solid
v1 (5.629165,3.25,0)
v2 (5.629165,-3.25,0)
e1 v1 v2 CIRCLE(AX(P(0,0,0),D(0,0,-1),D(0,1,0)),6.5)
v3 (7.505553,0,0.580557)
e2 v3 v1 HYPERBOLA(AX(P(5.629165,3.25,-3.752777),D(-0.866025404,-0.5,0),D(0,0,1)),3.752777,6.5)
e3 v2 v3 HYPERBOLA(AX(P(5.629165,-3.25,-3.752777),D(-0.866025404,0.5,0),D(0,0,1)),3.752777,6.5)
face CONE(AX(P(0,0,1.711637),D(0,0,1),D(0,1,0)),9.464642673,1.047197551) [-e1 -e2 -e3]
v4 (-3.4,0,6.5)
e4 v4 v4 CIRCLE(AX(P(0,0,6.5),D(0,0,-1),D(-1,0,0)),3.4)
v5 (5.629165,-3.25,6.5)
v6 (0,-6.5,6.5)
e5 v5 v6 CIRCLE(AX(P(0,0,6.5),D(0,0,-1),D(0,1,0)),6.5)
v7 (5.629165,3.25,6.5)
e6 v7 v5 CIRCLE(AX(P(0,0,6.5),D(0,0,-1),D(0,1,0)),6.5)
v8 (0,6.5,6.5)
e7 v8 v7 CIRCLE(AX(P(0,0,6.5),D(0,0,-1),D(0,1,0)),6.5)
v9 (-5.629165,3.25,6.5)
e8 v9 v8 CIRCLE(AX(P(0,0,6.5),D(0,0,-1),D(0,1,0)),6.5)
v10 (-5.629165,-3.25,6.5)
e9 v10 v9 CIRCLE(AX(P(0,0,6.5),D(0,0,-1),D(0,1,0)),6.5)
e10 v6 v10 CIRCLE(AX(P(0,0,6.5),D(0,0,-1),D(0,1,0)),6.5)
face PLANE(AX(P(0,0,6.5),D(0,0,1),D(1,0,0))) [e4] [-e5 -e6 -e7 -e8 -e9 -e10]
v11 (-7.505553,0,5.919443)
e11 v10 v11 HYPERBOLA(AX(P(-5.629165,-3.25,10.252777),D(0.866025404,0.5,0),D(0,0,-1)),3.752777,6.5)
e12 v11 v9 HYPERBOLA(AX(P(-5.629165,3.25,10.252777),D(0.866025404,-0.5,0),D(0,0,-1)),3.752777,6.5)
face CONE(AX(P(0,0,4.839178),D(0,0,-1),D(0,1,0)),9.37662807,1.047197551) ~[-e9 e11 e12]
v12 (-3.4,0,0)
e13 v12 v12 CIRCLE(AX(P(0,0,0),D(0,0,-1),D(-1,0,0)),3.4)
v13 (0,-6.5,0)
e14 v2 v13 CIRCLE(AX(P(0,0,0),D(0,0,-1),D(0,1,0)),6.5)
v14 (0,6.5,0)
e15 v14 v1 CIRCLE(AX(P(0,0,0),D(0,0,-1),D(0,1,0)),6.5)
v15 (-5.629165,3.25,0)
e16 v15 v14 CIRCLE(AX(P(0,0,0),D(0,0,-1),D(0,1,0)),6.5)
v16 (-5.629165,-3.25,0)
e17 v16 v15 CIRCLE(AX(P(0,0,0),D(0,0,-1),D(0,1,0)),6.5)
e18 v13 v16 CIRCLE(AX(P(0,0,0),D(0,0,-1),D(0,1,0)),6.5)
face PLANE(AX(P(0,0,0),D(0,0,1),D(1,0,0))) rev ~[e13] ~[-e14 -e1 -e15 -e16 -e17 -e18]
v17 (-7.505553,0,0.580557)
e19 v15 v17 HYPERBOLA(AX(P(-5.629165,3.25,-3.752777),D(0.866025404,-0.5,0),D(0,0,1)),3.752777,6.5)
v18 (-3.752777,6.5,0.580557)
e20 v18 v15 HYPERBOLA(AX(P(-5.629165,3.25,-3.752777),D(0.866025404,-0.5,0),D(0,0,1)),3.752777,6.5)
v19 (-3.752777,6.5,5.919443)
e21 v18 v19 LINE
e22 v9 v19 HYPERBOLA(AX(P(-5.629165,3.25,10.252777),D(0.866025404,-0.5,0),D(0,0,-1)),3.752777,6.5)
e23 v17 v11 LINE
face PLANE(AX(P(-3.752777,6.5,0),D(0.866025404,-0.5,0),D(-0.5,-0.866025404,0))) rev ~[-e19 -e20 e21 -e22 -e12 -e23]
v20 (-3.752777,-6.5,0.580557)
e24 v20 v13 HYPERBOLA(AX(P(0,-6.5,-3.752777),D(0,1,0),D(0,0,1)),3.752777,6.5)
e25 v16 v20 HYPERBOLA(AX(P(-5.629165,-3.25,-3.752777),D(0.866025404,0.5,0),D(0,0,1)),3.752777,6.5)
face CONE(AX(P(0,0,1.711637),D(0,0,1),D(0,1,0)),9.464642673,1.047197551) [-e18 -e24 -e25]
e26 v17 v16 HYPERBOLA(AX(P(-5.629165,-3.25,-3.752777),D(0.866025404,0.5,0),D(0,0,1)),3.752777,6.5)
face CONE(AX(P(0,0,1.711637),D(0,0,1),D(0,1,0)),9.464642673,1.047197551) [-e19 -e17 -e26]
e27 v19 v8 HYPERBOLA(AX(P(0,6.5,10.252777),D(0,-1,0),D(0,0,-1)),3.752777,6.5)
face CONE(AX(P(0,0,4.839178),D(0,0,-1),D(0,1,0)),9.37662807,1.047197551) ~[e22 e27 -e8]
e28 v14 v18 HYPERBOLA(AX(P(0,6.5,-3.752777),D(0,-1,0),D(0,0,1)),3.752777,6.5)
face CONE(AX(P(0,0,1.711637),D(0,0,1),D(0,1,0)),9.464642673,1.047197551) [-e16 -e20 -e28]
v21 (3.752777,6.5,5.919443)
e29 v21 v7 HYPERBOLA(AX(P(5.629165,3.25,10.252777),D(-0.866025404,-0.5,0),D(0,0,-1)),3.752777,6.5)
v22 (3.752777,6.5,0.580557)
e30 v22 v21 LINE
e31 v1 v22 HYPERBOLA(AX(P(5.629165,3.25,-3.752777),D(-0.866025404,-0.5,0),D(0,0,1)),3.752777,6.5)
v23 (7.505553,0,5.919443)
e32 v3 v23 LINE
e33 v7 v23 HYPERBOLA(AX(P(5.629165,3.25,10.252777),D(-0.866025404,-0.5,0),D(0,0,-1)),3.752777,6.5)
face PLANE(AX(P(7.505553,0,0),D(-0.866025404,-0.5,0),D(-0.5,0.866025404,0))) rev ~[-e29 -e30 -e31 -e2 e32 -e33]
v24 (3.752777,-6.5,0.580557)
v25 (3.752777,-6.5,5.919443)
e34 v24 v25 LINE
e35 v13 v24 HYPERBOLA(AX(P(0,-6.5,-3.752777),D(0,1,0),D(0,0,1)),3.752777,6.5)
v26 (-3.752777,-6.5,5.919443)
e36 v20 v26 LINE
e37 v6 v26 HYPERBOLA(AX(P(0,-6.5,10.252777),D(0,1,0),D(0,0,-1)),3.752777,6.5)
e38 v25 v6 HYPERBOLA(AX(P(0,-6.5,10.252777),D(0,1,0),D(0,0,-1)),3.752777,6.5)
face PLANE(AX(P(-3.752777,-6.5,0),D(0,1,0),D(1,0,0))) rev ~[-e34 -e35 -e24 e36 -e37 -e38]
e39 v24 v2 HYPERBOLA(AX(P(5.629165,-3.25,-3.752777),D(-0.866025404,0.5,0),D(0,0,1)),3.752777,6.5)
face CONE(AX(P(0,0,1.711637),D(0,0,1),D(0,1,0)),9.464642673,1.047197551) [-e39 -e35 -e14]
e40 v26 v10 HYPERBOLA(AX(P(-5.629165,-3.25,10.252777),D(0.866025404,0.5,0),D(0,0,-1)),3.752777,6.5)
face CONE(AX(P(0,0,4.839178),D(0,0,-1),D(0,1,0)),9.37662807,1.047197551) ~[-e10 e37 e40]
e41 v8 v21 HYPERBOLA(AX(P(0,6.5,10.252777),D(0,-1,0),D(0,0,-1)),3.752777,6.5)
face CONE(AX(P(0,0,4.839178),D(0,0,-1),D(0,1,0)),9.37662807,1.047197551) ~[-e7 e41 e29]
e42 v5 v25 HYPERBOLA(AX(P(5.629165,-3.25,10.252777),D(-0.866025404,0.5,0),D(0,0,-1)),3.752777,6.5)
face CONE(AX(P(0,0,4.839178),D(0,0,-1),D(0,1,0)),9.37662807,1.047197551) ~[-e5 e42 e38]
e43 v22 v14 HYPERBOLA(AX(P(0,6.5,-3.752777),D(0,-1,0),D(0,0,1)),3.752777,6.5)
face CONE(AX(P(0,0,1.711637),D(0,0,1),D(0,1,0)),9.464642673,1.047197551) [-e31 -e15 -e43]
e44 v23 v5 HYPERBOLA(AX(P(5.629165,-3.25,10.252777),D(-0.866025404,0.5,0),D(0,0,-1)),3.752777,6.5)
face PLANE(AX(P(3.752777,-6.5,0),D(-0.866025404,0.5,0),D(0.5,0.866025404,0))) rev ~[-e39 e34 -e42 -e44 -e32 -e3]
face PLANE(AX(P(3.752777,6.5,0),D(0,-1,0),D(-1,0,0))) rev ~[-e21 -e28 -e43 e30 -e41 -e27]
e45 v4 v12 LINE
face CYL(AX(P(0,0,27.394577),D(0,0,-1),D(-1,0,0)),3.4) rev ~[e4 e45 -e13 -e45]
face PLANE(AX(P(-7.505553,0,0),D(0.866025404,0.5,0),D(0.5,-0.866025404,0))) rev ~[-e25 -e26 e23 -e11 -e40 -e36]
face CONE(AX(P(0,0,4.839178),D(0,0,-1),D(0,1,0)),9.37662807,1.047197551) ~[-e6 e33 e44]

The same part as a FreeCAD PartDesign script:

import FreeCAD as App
import Part
import Sketcher
from FreeCAD import Vector
Q = App.Units.Quantity

doc = App.newDocument("Part")
body = doc.addObject("PartDesign::Body", "Body")

sketch1 = doc.addObject("Sketcher::SketchObject", "Sketch")
body.addObject(sketch1)
sketch1.AttachmentSupport = (doc.XY_Plane, [""])
sketch1.MapMode = "FlatFace"
sketch1.addGeometry([
    Part.LineSegment(Vector(3.752777, -6.5, 0), Vector(7.505553, 0, 0)),
    Part.LineSegment(Vector(7.505553, 0, 0), Vector(3.752777, 6.5, 0)),
    Part.LineSegment(Vector(3.752777, 6.5, 0), Vector(-3.752777, 6.5, 0)),
    Part.LineSegment(Vector(-3.752777, 6.5, 0), Vector(-7.505553, 0, 0)),
    Part.LineSegment(Vector(-7.505553, 0, 0), Vector(-3.752777, -6.5, 0)),
    Part.LineSegment(Vector(-3.752777, -6.5, 0), Vector(3.752777, -6.5, 0)),
], False)
sketch1.addConstraint([
    Sketcher.Constraint("Coincident", 0, 2, 1, 1),
    Sketcher.Constraint("Coincident", 1, 2, 2, 1),
    Sketcher.Constraint("Coincident", 2, 2, 3, 1),
    Sketcher.Constraint("Coincident", 3, 2, 4, 1),
    Sketcher.Constraint("Coincident", 4, 2, 5, 1),
    Sketcher.Constraint("Coincident", 5, 2, 0, 1),
    Sketcher.Constraint("Horizontal", 2),
    Sketcher.Constraint("Horizontal", 5),
    Sketcher.Constraint("Symmetric", 0, 2, 3, 2, -1, 1),
    Sketcher.Constraint("Symmetric", 1, 2, 4, 2, -1, 1),
    Sketcher.Constraint("PointOnObject", 0, 2, -1),
    Sketcher.Constraint("Parallel", 0, 3),
    Sketcher.Constraint("Vertical", 2, 2, 4, 2),
    Sketcher.Constraint("Angle", 0, Q("60 deg")),
    Sketcher.Constraint("DistanceY", 4, 2, 2, 2, 13.0),
    Sketcher.Constraint("DistanceX", 2, 2, 2, 1, 7.505554),
])
pad1 = doc.addObject("PartDesign::Pad", "Pad")
body.addObject(pad1)
pad1.Profile = sketch1
pad1.Length = 6.5

sketch2 = doc.addObject("Sketcher::SketchObject", "Sketch001")
body.addObject(sketch2)
sketch2.AttachmentSupport = (doc.YZ_Plane, [""])
sketch2.MapMode = "FlatFace"
sketch2.addGeometry([
    Part.LineSegment(Vector(9.464643, 1.711637, 0), Vector(6.5, 0, 0)),
    Part.LineSegment(Vector(6.5, 0, 0), Vector(9.464643, 0, 0)),
    Part.LineSegment(Vector(9.464643, 0, 0), Vector(9.464643, 1.711637, 0)),
    Part.LineSegment(Vector(9.376628, 6.5, 0), Vector(6.5, 6.5, 0)),
    Part.LineSegment(Vector(6.5, 6.5, 0), Vector(9.376628, 4.839178, 0)),
    Part.LineSegment(Vector(9.376628, 4.839178, 0), Vector(9.376628, 6.5, 0)),
], False)
sketch2.addConstraint([
    Sketcher.Constraint("Coincident", 0, 2, 1, 1),
    Sketcher.Constraint("Coincident", 1, 2, 2, 1),
    Sketcher.Constraint("Coincident", 2, 2, 0, 1),
    Sketcher.Constraint("Coincident", 3, 2, 4, 1),
    Sketcher.Constraint("Coincident", 4, 2, 5, 1),
    Sketcher.Constraint("Coincident", 5, 2, 3, 1),
    Sketcher.Constraint("Horizontal", 1),
    Sketcher.Constraint("Vertical", 2),
    Sketcher.Constraint("Horizontal", 3),
    Sketcher.Constraint("Vertical", 5),
    Sketcher.Constraint("PointOnObject", 0, 2, -1),
    Sketcher.Constraint("Vertical", 0, 2, 3, 2),
    Sketcher.Constraint("Angle", 0, Q("-150 deg")),
    Sketcher.Constraint("Angle", 4, Q("-30 deg")),
    Sketcher.Constraint("DistanceX", -1, 1, 0, 2, 6.5),
    Sketcher.Constraint("DistanceY", -1, 1, 3, 2, 6.5),
    Sketcher.Constraint("DistanceX", 3, 2, 3, 1, 2.876628),
    Sketcher.Constraint("DistanceX", 1, 1, 1, 2, 2.964643),
])
groove = doc.addObject("PartDesign::Groove", "Groove")
body.addObject(groove)
groove.Profile = sketch2
groove.ReferenceAxis = (sketch2, ["V_Axis"])
groove.Angle = 360

sketch3 = doc.addObject("Sketcher::SketchObject", "Sketch002")
body.addObject(sketch3)
sketch3.AttachmentSupport = (doc.XY_Plane, [""])
sketch3.MapMode = "FlatFace"
sketch3.AttachmentOffset = App.Placement(Vector(0, 0, 6.5), App.Rotation())
sketch3.addGeometry(Part.Circle(Vector(0, 0, 0), Vector(0, 0, 1), 3.4), False)
sketch3.addConstraint([
    Sketcher.Constraint("Coincident", 0, 3, -1, 1),
    Sketcher.Constraint("Diameter", 0, 6.8),
])
doc.recompute()
hole = doc.addObject("PartDesign::Hole", "Hole")
body.addObject(hole)
hole.Profile = sketch3
hole.ThreadType = "None"
hole.Diameter = 6.8
hole.DepthType = "ThroughAll"

doc.recompute()
